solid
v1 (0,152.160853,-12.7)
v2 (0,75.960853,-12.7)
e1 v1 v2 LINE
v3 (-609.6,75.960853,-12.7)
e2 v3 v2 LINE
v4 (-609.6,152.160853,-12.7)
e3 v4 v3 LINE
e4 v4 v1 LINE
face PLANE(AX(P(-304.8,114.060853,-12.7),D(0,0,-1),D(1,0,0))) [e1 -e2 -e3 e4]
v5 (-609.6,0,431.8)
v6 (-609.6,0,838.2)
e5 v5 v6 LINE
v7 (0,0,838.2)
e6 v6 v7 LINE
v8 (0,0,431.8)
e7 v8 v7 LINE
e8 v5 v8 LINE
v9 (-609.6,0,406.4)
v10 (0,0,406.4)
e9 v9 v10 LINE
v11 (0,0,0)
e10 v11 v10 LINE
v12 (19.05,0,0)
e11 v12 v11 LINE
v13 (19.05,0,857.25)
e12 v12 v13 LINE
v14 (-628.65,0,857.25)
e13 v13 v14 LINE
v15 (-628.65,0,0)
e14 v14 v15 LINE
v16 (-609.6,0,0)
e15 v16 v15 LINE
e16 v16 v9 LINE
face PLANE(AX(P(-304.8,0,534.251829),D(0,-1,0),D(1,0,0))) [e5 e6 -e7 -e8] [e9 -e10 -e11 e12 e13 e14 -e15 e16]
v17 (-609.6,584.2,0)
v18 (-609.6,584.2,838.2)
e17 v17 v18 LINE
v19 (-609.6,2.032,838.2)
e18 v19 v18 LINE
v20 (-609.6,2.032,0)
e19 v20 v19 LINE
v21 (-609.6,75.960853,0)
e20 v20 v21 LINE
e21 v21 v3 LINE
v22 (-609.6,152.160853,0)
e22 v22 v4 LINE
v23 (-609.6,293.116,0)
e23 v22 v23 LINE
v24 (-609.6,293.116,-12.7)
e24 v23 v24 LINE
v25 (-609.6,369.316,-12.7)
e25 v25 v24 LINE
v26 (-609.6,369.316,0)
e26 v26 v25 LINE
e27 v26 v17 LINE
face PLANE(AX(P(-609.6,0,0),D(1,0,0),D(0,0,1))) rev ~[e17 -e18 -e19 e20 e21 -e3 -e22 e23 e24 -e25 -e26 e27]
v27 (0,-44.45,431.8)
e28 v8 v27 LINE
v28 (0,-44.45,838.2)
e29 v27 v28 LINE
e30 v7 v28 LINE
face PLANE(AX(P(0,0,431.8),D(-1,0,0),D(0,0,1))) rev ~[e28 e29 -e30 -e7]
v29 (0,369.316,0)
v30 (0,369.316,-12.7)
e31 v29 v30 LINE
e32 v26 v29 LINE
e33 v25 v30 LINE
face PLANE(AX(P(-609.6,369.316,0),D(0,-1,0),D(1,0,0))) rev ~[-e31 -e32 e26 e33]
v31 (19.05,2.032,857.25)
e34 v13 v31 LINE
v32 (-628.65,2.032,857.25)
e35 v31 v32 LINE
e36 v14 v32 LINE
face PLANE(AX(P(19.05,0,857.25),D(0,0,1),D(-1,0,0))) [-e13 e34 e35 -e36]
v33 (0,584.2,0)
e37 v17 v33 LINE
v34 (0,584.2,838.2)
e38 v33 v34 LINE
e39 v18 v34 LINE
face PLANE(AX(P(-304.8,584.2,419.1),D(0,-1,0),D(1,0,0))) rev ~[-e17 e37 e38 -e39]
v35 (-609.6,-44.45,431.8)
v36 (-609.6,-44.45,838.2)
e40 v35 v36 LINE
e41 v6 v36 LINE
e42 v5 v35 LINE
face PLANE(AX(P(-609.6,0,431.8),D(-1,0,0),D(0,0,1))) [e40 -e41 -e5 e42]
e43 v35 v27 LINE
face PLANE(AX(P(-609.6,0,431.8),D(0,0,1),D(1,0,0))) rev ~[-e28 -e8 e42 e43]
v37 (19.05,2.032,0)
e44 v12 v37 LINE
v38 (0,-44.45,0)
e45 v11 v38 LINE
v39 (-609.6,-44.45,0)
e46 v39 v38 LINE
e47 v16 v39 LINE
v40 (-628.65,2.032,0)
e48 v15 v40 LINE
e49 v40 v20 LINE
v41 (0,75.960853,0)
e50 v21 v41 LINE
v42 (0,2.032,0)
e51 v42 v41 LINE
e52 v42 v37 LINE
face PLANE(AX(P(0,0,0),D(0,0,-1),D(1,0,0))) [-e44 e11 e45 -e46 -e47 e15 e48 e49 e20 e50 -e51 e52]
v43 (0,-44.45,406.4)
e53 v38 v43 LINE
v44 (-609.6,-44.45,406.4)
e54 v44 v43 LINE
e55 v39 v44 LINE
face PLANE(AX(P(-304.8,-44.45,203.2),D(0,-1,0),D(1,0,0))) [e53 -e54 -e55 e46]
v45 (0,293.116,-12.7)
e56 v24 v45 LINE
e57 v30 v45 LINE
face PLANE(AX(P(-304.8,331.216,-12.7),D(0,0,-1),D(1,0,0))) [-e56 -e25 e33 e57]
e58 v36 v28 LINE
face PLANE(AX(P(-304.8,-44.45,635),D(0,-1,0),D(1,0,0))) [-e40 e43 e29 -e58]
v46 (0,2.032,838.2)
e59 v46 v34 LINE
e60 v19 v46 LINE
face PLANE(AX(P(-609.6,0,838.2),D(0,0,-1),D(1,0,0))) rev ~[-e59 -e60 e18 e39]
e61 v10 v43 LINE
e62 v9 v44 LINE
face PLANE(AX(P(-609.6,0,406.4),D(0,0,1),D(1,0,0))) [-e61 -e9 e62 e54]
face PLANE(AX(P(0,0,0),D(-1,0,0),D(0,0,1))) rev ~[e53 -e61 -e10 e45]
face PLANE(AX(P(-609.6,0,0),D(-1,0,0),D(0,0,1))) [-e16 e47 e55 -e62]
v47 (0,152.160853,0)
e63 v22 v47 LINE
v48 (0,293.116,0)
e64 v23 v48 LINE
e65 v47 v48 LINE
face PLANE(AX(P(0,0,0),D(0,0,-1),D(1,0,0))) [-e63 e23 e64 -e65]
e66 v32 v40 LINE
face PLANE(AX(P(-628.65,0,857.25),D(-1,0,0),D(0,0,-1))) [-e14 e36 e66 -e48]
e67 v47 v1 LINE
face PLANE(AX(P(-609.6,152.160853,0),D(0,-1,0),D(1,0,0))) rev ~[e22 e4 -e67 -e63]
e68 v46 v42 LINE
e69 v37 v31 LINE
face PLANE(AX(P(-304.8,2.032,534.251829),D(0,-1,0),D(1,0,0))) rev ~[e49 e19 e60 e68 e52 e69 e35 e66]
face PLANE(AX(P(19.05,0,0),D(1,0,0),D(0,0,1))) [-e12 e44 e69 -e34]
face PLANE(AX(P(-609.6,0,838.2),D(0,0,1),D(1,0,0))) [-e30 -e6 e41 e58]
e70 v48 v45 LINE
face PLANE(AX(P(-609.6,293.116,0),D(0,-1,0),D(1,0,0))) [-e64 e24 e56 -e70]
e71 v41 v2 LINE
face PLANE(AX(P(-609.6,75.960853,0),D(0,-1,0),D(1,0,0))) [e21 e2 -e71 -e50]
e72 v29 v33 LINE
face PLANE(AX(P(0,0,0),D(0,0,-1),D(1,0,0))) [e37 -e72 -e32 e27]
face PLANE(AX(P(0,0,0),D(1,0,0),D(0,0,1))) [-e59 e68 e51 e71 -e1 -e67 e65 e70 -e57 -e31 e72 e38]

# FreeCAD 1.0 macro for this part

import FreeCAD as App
import Part
import Sketcher
Q = App.Units.Quantity


def add_polygon(sketch, points):
    """Adds a closed chain of lines whose ends are joined by coincident constraints."""
    first, n = sketch.GeometryCount, len(points)
    for a, b in zip(points, points[1:] + points[:1]):
        sketch.addGeometry(Part.LineSegment(App.Vector(*a, 0), App.Vector(*b, 0)), False)
    for i in range(n):
        sketch.addConstraint(Sketcher.Constraint("Coincident", first + i, 2, first + (i + 1) % n, 1))

doc = App.newDocument("Part")
body = doc.addObject("PartDesign::Body", "Body")

# Sketch on XZ plane
sketch1 = doc.addObject("Sketcher::SketchObject", "Sketch")
body.addObject(sketch1)
sketch1.AttachmentSupport = (doc.XZ_Plane, [""])
sketch1.MapMode = "FlatFace"
add_polygon(sketch1, [(-610, 838), (-610, 0), (0, 0), (0, 838)])  # lines 0-3
sketch1.addConstraint([
    Sketcher.Constraint("Vertical", 0),
    Sketcher.Constraint("Horizontal", 1),
    Sketcher.Constraint("Vertical", 2),
    Sketcher.Constraint("Horizontal", 3),
    Sketcher.Constraint("Coincident", 1, 2, -1, 1),
    Sketcher.Constraint("DistanceX", 1, 1, 1, 2, Q("24 in")),
    Sketcher.Constraint("DistanceY", 0, 2, 0, 1, Q("33 in")),
])
pad1 = doc.addObject("PartDesign::Pad", "Pad")
body.addObject(pad1)
pad1.Profile = sketch1
pad1.Length = Q("23 in")
pad1.Reversed = True

# Sketch on XZ plane
sketch2 = doc.addObject("Sketcher::SketchObject", "Sketch001")
body.addObject(sketch2)
sketch2.AttachmentSupport = (doc.XZ_Plane, [""])
sketch2.MapMode = "FlatFace"
add_polygon(sketch2, [(0, 838), (0, 0), (19, 0), (19, 857), (-629, 857), (-629, 0), (-610, 0), (-610, 838)])  # lines 0-7
sketch2.addConstraint([
    Sketcher.Constraint("Vertical", 0),
    Sketcher.Constraint("Horizontal", 1),
    Sketcher.Constraint("Vertical", 2),
    Sketcher.Constraint("Horizontal", 3),
    Sketcher.Constraint("Vertical", 4),
    Sketcher.Constraint("Horizontal", 5),
    Sketcher.Constraint("Vertical", 6),
    Sketcher.Constraint("Horizontal", 7),
    Sketcher.Constraint("Coincident", 0, 2, -1, 1),
    Sketcher.Constraint("PointOnObject", 4, 2, -1),
    Sketcher.Constraint("Equal", 1, 5),
    Sketcher.Constraint("DistanceX", 7, 1, 7, 2, Q("24 in")),
    Sketcher.Constraint("DistanceY", 0, 2, 0, 1, Q("33 in")),
    Sketcher.Constraint("DistanceX", 3, 2, 3, 1, Q("25.5 in")),
    Sketcher.Constraint("DistanceY", 2, 1, 2, 2, Q("33.75 in")),
])
pad2 = doc.addObject("PartDesign::Pad", "Pad001")
body.addObject(pad2)
pad2.Profile = sketch2
pad2.Length = Q("0.08 in")
pad2.Reversed = True

# Sketch on XZ plane
sketch3 = doc.addObject("Sketcher::SketchObject", "Sketch002")
body.addObject(sketch3)
sketch3.AttachmentSupport = (doc.XZ_Plane, [""])
sketch3.MapMode = "FlatFace"
add_polygon(sketch3, [(-610, 838), (-610, 432), (0, 432), (0, 838)])  # lines 0-3
add_polygon(sketch3, [(-610, 406), (-610, 0), (0, 0), (0, 406)])  # lines 4-7
sketch3.addConstraint([
    Sketcher.Constraint("Vertical", 0),
    Sketcher.Constraint("Horizontal", 1),
    Sketcher.Constraint("Vertical", 2),
    Sketcher.Constraint("Horizontal", 3),
    Sketcher.Constraint("Vertical", 4),
    Sketcher.Constraint("Horizontal", 5),
    Sketcher.Constraint("Vertical", 6),
    Sketcher.Constraint("Horizontal", 7),
    Sketcher.Constraint("Coincident", 5, 2, -1, 1),
    Sketcher.Constraint("PointOnObject", 1, 2, -2),
    Sketcher.Constraint("Vertical", 3, 2, 4, 2),
    Sketcher.Constraint("Equal", 2, 4),
    Sketcher.Constraint("DistanceX", 1, 1, 1, 2, Q("24 in")),
    Sketcher.Constraint("DistanceY", 0, 2, 0, 1, Q("16 in")),
    Sketcher.Constraint("DistanceY", -1, 1, 0, 2, Q("17 in")),
])
pad3 = doc.addObject("PartDesign::Pad", "Pad002")
body.addObject(pad3)
pad3.Profile = sketch3
pad3.Length = Q("1.75 in")

# Sketch on XY plane
sketch4 = doc.addObject("Sketcher::SketchObject", "Sketch003")
body.addObject(sketch4)
sketch4.AttachmentSupport = (doc.XY_Plane, [""])
sketch4.MapMode = "FlatFace"
add_polygon(sketch4, [(-610, 76), (-610, 152), (0, 152), (0, 76)])  # lines 0-3
add_polygon(sketch4, [(-610, 293), (-610, 369), (0, 369), (0, 293)])  # lines 4-7
sketch4.addConstraint([
    Sketcher.Constraint("Vertical", 0),
    Sketcher.Constraint("Horizontal", 1),
    Sketcher.Constraint("Vertical", 2),
    Sketcher.Constraint("Horizontal", 3),
    Sketcher.Constraint("Vertical", 4),
    Sketcher.Constraint("Horizontal", 5),
    Sketcher.Constraint("Vertical", 6),
    Sketcher.Constraint("Horizontal", 7),
    Sketcher.Constraint("PointOnObject", 1, 2, -2),
    Sketcher.Constraint("PointOnObject", 5, 2, -2),
    Sketcher.Constraint("Vertical", 3, 2, 4, 2),
    Sketcher.Constraint("Equal", 2, 4),
    Sketcher.Constraint("DistanceX", 1, 1, 1, 2, Q("24 in")),
    Sketcher.Constraint("DistanceY", 0, 1, 0, 2, Q("3 in")),
    Sketcher.Constraint("DistanceY", -1, 1, 4, 2, Q("14.54 in")),
    Sketcher.Constraint("DistanceY", -1, 1, 0, 2, 152.160853),
])
pad4 = doc.addObject("PartDesign::Pad", "Pad003")
body.addObject(pad4)
pad4.Profile = sketch4
pad4.Length = Q("0.5 in")
pad4.Reversed = True

doc.recompute()
